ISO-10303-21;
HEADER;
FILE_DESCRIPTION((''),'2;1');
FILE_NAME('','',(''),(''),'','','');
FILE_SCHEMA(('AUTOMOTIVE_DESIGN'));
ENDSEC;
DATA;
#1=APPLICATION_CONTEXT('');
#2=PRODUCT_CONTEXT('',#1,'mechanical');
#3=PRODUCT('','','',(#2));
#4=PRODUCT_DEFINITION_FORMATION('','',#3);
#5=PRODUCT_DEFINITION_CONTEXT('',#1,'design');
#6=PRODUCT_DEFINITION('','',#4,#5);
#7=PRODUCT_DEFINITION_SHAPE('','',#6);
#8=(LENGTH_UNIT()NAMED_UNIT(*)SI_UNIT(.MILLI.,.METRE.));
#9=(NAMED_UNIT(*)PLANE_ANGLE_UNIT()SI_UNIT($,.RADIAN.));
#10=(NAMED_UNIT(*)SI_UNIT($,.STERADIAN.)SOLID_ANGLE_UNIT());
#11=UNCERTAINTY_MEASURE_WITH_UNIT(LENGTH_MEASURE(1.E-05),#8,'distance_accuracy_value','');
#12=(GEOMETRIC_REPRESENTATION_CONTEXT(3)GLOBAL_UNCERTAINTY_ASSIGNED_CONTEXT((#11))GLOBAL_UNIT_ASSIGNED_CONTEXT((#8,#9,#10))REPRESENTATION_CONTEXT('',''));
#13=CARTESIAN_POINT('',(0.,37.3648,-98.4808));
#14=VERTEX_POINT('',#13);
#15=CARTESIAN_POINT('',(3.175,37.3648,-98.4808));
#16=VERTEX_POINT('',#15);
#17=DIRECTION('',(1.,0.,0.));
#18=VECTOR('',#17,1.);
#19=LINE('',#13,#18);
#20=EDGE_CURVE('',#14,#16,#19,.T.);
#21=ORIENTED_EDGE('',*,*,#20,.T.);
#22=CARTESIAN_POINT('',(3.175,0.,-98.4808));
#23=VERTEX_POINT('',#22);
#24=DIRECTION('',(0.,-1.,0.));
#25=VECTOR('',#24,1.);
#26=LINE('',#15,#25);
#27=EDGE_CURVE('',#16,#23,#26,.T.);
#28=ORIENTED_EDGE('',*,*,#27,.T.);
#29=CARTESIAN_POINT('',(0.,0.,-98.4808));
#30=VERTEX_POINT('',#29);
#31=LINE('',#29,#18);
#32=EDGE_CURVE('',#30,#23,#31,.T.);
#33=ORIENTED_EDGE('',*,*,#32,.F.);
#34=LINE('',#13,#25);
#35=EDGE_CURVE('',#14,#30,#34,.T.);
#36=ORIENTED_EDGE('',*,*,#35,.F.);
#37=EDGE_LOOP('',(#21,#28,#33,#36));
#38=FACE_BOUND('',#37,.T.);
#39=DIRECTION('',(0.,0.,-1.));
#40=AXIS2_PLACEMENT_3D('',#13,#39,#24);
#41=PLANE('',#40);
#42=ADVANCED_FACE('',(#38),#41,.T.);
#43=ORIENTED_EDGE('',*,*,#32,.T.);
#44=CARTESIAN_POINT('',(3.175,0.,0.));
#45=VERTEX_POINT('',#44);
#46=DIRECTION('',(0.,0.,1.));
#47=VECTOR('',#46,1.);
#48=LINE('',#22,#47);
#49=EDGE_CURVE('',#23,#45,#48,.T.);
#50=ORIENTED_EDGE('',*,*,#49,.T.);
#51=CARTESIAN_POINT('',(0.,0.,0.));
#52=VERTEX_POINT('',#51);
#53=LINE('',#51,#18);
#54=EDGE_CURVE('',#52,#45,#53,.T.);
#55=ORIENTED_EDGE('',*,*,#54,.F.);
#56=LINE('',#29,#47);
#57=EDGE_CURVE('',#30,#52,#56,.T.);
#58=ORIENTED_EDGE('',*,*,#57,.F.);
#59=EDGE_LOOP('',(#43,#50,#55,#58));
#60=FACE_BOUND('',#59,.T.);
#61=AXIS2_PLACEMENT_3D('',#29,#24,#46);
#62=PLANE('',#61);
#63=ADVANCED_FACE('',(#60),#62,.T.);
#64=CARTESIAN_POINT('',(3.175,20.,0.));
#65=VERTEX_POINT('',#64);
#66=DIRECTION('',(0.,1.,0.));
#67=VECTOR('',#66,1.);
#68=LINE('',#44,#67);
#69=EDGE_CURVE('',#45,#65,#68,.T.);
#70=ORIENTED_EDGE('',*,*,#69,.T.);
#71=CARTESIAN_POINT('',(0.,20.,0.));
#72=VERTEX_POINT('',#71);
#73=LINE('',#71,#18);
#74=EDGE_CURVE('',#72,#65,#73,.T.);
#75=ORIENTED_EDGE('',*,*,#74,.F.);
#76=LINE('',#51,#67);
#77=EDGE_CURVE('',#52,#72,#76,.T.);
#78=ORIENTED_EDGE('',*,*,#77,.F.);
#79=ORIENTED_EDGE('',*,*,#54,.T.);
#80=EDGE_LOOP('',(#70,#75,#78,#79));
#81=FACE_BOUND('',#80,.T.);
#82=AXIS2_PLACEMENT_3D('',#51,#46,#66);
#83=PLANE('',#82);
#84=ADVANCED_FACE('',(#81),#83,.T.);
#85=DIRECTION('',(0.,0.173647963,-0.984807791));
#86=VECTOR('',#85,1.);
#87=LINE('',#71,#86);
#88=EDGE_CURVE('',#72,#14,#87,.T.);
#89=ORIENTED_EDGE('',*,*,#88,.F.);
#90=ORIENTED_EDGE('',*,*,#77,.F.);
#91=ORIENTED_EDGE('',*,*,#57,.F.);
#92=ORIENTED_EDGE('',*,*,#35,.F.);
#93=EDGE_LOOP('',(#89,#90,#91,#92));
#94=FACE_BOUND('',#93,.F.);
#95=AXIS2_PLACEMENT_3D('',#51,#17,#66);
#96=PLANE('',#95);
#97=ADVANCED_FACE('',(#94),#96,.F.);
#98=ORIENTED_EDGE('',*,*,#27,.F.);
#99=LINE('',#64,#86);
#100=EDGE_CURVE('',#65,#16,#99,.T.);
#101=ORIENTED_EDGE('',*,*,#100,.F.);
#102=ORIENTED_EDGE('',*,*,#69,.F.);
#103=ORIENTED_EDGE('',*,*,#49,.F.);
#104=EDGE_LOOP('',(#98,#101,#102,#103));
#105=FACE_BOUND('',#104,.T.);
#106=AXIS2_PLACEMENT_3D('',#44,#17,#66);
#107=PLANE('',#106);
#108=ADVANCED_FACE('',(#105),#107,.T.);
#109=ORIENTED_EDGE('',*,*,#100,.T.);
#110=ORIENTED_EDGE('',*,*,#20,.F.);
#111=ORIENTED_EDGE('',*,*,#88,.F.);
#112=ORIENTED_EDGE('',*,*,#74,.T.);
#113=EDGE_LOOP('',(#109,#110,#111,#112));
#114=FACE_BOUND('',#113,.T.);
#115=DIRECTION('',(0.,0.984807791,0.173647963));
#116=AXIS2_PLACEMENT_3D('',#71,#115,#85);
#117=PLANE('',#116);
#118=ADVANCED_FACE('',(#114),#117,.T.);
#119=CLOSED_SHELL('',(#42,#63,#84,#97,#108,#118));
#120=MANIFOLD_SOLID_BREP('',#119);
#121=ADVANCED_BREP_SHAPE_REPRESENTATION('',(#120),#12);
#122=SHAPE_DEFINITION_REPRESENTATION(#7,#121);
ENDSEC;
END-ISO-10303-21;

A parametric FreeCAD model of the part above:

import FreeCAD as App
import Part
import Sketcher

V = App.Vector
Q = App.Units.Quantity

doc = App.newDocument("Part")
params = doc.addObject("Spreadsheet::Sheet", "Params")
for row, (alias, value) in enumerate([
    ("sketch1_length", "3.937 in"),
    ("pad1_length", "0.125 in"),
], start=1):
    params.set(f"A{row}", alias)
    params.set(f"B{row}", "=" + value)
    params.setAlias(f"B{row}", alias)

body = doc.addObject("PartDesign::Body", "Body")

# Sketch on YZ plane
sketch1 = body.newObject("Sketcher::SketchObject", "Sketch")
sketch1.AttachmentSupport = (doc.getObject("YZ_Plane"), [""])
sketch1.MapMode = "FlatFace"
sketch1.addGeometry([
    Part.LineSegment(V(20, 0, 0), V(0, 0, 0)),
    Part.LineSegment(V(0, 0, 0), V(0, -98.4808, 0)),
    Part.LineSegment(V(0, -98.4808, 0), V(37.3648, -98.4808, 0)),
    Part.LineSegment(V(37.3648, -98.4808, 0), V(20, 0, 0)),
], False)
sketch1.addConstraint([
    Sketcher.Constraint("Coincident", 0, 2, 1, 1),
    Sketcher.Constraint("Coincident", 1, 2, 2, 1),
    Sketcher.Constraint("Coincident", 2, 2, 3, 1),
    Sketcher.Constraint("Coincident", 3, 2, 0, 1),
    Sketcher.Constraint("Horizontal", 0),
    Sketcher.Constraint("Vertical", 1),
    Sketcher.Constraint("Horizontal", 2),
    Sketcher.Constraint("Coincident", 0, 2, -1, 1),
    Sketcher.Constraint("Angle", 3, Q("100 deg")),
    Sketcher.Constraint("Distance", 3, Q("3.937 in")),
    Sketcher.Constraint("DistanceX", 0, 2, 0, 1, Q("0.7874 in")),
])
sketch1.setExpression("Constraints[9]", "Params.sketch1_length")
pad1 = body.newObject("PartDesign::Pad", "Pad")
pad1.Profile = sketch1
pad1.setExpression("Length", "Params.pad1_length")

doc.recompute()
